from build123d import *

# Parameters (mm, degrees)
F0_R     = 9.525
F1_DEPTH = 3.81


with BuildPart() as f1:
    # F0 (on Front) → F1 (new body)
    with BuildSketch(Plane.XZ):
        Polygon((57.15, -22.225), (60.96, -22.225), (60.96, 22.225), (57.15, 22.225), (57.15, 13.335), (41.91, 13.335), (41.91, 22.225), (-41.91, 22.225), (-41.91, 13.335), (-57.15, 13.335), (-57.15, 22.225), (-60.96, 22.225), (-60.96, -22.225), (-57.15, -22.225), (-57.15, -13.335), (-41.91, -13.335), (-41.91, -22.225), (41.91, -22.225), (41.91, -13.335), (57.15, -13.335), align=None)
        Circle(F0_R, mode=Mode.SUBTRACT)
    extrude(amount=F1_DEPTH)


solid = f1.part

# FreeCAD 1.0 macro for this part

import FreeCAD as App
import Part
import Sketcher
from FreeCAD import Vector
Q = App.Units.Quantity

doc = App.newDocument("Part")
params = doc.addObject("Spreadsheet::Sheet", "Params")
for row, (alias, value) in enumerate([
    ("sketch1_diameter", "0.75 in"),
    ("sketch1_width", "0.6 in"),
    ("sketch1_width2", "3.3 in"),
    ("sketch1_width3", "0.15 in"),
    ("sketch1_height", "1.75 in"),
    ("pad1_length", "0.15 in"),
], start=1):
    params.set(f"A{row}", alias)
    params.set(f"B{row}", "=" + value)
    params.setAlias(f"B{row}", alias)

body = doc.addObject("PartDesign::Body", "Body")

sketch1 = doc.addObject("Sketcher::SketchObject", "Sketch")
body.addObject(sketch1)
sketch1.AttachmentSupport = (doc.XZ_Plane, [""])
sketch1.MapMode = "FlatFace"
sketch1.addGeometry([
    Part.LineSegment(Vector(57.1, -22.2, 0), Vector(61, -22.2, 0)),
    Part.LineSegment(Vector(61, -22.2, 0), Vector(61, 22.2, 0)),
    Part.LineSegment(Vector(61, 22.2, 0), Vector(57.1, 22.2, 0)),
    Part.LineSegment(Vector(57.1, 22.2, 0), Vector(57.1, 13.3, 0)),
    Part.LineSegment(Vector(57.1, 13.3, 0), Vector(41.9, 13.3, 0)),
    Part.LineSegment(Vector(41.9, 13.3, 0), Vector(41.9, 22.2, 0)),
    Part.LineSegment(Vector(41.9, 22.2, 0), Vector(-41.9, 22.2, 0)),
    Part.LineSegment(Vector(-41.9, 22.2, 0), Vector(-41.9, 13.3, 0)),
    Part.LineSegment(Vector(-41.9, 13.3, 0), Vector(-57.1, 13.3, 0)),
    Part.LineSegment(Vector(-57.1, 13.3, 0), Vector(-57.1, 22.2, 0)),
    Part.LineSegment(Vector(-57.1, 22.2, 0), Vector(-61, 22.2, 0)),
    Part.LineSegment(Vector(-61, 22.2, 0), Vector(-61, -22.2, 0)),
    Part.LineSegment(Vector(-61, -22.2, 0), Vector(-57.1, -22.2, 0)),
    Part.LineSegment(Vector(-57.1, -22.2, 0), Vector(-57.1, -13.3, 0)),
    Part.LineSegment(Vector(-57.1, -13.3, 0), Vector(-41.9, -13.3, 0)),
    Part.LineSegment(Vector(-41.9, -13.3, 0), Vector(-41.9, -22.2, 0)),
    Part.LineSegment(Vector(-41.9, -22.2, 0), Vector(41.9, -22.2, 0)),
    Part.LineSegment(Vector(41.9, -22.2, 0), Vector(41.9, -13.3, 0)),
    Part.LineSegment(Vector(41.9, -13.3, 0), Vector(57.1, -13.3, 0)),
    Part.LineSegment(Vector(57.1, -13.3, 0), Vector(57.1, -22.2, 0)),
    Part.Circle(Vector(0, 0, 0), Vector(0, 0, 1), 9.5),
], False)
sketch1.addConstraint([
    Sketcher.Constraint("Coincident", 0, 2, 1, 1),
    Sketcher.Constraint("Coincident", 1, 2, 2, 1),
    Sketcher.Constraint("Coincident", 2, 2, 3, 1),
    Sketcher.Constraint("Coincident", 3, 2, 4, 1),
    Sketcher.Constraint("Coincident", 4, 2, 5, 1),
    Sketcher.Constraint("Coincident", 5, 2, 6, 1),
    Sketcher.Constraint("Coincident", 6, 2, 7, 1),
    Sketcher.Constraint("Coincident", 7, 2, 8, 1),
    Sketcher.Constraint("Coincident", 8, 2, 9, 1),
    Sketcher.Constraint("Coincident", 9, 2, 10, 1),
    Sketcher.Constraint("Coincident", 10, 2, 11, 1),
    Sketcher.Constraint("Coincident", 11, 2, 12, 1),
    Sketcher.Constraint("Coincident", 12, 2, 13, 1),
    Sketcher.Constraint("Coincident", 13, 2, 14, 1),
    Sketcher.Constraint("Coincident", 14, 2, 15, 1),
    Sketcher.Constraint("Coincident", 15, 2, 16, 1),
    Sketcher.Constraint("Coincident", 16, 2, 17, 1),
    Sketcher.Constraint("Coincident", 17, 2, 18, 1),
    Sketcher.Constraint("Coincident", 18, 2, 19, 1),
    Sketcher.Constraint("Coincident", 19, 2, 0, 1),
    Sketcher.Constraint("Horizontal", 0),
    Sketcher.Constraint("Vertical", 1),
    Sketcher.Constraint("Horizontal", 2),
    Sketcher.Constraint("Vertical", 3),
    Sketcher.Constraint("Horizontal", 4),
    Sketcher.Constraint("Vertical", 5),
    Sketcher.Constraint("Horizontal", 6),
    Sketcher.Constraint("Vertical", 7),
    Sketcher.Constraint("Horizontal", 8),
    Sketcher.Constraint("Vertical", 9),
    Sketcher.Constraint("Horizontal", 10),
    Sketcher.Constraint("Vertical", 11),
    Sketcher.Constraint("Horizontal", 12),
    Sketcher.Constraint("Vertical", 13),
    Sketcher.Constraint("Horizontal", 14),
    Sketcher.Constraint("Vertical", 15),
    Sketcher.Constraint("Horizontal", 16),
    Sketcher.Constraint("Vertical", 17),
    Sketcher.Constraint("Horizontal", 18),
    Sketcher.Constraint("Vertical", 19),
    Sketcher.Constraint("Coincident", 20, 3, -1, 1),
    Sketcher.Constraint("Symmetric", 0, 2, 10, 2, -1, 1),
    Sketcher.Constraint("Symmetric", 2, 2, 12, 2, -1, 1),
    Sketcher.Constraint("Symmetric", 4, 2, 14, 2, -1, 1),
    Sketcher.Constraint("Symmetric", 6, 2, 16, 2, -1, 1),
    Sketcher.Constraint("Symmetric", 8, 2, 18, 2, -1, 1),
    Sketcher.Constraint("Symmetric", 4, 2, 7, 2, -2),
    Sketcher.Constraint("Symmetric", 2, 2, 9, 2, -2),
    Sketcher.Constraint("Horizontal", 2, 2, 5, 2),
    Sketcher.Constraint("Diameter", 20, Q("0.75 in")),
    Sketcher.Constraint("DistanceX", 4, 2, 4, 1, Q("0.6 in")),
    Sketcher.Constraint("DistanceX", 6, 2, 6, 1, Q("3.3 in")),
    Sketcher.Constraint("DistanceX", 0, 1, 0, 2, Q("0.15 in")),
    Sketcher.Constraint("DistanceY", 1, 1, 1, 2, Q("1.75 in")),
    Sketcher.Constraint("DistanceY", 3, 2, 3, 1, Q("0.35 in")),
])
sketch1.setExpression("Constraints[49]", "Params.sketch1_diameter")
sketch1.setExpression("Constraints[50]", "Params.sketch1_width")
sketch1.setExpression("Constraints[51]", "Params.sketch1_width2")
sketch1.setExpression("Constraints[52]", "Params.sketch1_width3")
sketch1.setExpression("Constraints[53]", "Params.sketch1_height")
pad1 = doc.addObject("PartDesign::Pad", "Pad")
body.addObject(pad1)
pad1.Profile = sketch1
pad1.setExpression("Length", "Params.pad1_length")

doc.recompute()
